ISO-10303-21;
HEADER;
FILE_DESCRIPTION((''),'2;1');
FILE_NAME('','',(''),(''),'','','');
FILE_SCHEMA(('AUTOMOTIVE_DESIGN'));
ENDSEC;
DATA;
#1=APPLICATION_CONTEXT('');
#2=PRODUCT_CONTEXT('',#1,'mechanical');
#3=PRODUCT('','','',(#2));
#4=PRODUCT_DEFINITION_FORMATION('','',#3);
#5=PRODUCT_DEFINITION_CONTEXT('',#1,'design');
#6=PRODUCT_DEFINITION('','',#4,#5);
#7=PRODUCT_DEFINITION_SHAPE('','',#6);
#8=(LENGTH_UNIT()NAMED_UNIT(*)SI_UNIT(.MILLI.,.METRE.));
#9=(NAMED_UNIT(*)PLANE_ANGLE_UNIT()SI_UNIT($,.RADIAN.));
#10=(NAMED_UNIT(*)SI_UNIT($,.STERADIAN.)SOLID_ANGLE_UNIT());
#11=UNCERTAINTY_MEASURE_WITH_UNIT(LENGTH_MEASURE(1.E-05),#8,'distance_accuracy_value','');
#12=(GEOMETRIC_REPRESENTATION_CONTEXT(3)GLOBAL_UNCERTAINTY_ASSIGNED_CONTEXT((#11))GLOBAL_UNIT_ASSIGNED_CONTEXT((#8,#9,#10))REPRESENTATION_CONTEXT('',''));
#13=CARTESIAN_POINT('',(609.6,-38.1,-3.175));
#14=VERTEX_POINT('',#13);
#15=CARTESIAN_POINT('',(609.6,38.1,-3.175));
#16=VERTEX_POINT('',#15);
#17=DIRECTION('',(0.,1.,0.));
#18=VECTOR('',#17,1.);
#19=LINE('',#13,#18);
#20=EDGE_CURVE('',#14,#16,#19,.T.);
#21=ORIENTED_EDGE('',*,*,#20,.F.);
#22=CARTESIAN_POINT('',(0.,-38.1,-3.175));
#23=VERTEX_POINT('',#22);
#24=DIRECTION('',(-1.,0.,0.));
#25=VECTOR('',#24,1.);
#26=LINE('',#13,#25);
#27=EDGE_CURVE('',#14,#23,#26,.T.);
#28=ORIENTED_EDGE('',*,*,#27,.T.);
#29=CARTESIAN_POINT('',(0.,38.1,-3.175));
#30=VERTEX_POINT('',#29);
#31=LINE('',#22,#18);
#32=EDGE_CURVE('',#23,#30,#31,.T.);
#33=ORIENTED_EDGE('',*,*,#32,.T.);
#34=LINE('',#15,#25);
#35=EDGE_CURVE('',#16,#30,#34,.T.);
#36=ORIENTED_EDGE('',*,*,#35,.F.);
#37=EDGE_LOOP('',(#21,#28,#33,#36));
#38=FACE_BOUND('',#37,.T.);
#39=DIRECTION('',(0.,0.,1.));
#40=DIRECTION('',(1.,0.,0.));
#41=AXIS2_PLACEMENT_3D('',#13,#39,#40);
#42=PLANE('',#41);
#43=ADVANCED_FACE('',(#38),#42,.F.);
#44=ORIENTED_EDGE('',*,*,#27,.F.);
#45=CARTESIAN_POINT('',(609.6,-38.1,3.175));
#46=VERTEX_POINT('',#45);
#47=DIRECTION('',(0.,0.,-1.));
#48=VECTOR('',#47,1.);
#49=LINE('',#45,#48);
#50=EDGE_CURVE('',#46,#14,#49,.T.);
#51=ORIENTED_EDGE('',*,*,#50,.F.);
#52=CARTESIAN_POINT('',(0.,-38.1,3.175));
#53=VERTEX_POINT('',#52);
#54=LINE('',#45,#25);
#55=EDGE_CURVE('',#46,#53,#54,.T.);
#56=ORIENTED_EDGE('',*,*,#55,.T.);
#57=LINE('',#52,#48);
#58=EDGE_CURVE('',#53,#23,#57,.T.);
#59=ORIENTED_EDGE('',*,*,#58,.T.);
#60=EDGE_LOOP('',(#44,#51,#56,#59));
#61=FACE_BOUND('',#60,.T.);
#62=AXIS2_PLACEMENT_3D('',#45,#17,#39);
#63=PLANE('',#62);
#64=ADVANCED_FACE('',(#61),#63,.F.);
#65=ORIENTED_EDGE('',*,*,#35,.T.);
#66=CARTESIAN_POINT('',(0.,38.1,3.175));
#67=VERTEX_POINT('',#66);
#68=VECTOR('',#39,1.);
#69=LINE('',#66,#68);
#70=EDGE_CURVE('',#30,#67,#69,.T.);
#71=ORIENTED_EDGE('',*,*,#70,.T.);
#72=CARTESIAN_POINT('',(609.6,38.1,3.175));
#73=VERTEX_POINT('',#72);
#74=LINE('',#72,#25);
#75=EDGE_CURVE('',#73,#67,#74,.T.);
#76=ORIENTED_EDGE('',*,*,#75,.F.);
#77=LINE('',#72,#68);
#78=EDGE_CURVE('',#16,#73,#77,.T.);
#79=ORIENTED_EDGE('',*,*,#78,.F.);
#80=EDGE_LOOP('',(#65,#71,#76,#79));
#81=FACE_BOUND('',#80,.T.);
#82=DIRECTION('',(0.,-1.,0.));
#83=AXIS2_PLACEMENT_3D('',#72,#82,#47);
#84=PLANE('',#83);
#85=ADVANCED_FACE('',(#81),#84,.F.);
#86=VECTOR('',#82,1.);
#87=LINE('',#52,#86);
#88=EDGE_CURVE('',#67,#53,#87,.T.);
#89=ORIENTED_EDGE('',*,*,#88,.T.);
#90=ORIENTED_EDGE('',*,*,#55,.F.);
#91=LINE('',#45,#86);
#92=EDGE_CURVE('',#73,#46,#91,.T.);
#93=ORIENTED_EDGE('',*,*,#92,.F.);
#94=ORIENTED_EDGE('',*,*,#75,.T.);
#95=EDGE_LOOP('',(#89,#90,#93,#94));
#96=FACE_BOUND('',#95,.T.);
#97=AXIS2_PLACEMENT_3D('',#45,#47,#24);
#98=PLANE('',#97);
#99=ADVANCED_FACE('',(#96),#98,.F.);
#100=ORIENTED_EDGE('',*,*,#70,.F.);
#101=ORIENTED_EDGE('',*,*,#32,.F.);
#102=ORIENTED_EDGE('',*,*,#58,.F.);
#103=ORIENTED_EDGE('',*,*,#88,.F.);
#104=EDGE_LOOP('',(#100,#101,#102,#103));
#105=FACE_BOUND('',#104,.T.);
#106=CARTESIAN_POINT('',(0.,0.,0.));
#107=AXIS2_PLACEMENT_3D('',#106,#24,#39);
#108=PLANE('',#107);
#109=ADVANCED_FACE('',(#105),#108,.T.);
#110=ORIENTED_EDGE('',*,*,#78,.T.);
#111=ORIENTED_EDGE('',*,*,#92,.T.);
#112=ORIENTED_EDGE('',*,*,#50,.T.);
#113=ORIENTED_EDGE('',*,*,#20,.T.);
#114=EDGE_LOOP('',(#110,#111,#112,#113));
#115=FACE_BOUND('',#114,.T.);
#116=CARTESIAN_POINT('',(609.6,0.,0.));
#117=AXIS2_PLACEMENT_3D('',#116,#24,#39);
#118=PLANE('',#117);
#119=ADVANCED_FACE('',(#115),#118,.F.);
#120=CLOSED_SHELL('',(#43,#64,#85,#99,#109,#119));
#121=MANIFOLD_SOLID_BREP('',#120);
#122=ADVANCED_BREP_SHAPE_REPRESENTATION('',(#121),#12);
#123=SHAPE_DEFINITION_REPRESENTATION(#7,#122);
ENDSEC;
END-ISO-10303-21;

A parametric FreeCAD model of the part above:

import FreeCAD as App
import Part
import Sketcher

V = App.Vector
Q = App.Units.Quantity

doc = App.newDocument("Part")
body = doc.addObject("PartDesign::Body", "Body")

# Sketch on YZ plane
sketch1 = body.newObject("Sketcher::SketchObject", "Sketch")
sketch1.AttachmentSupport = (doc.getObject("YZ_Plane"), [""])
sketch1.MapMode = "FlatFace"
sketch1.addGeometry(Part.LineSegment(V(38, 3, 0), V(-38, 3, 0)), False)
sketch1.addGeometry(Part.LineSegment(V(-38, 3, 0), V(-38, -3, 0)), False)
sketch1.addGeometry(Part.LineSegment(V(-38, -3, 0), V(38, -3, 0)), False)
sketch1.addGeometry(Part.LineSegment(V(38, -3, 0), V(38, 3, 0)), False)
sketch1.addConstraint(Sketcher.Constraint("Coincident", 0, 2, 1, 1))
sketch1.addConstraint(Sketcher.Constraint("Coincident", 1, 2, 2, 1))
sketch1.addConstraint(Sketcher.Constraint("Coincident", 2, 2, 3, 1))
sketch1.addConstraint(Sketcher.Constraint("Coincident", 3, 2, 0, 1))
sketch1.addConstraint(Sketcher.Constraint("Horizontal", 0))
sketch1.addConstraint(Sketcher.Constraint("Vertical", 1))
sketch1.addConstraint(Sketcher.Constraint("Horizontal", 2))
sketch1.addConstraint(Sketcher.Constraint("Vertical", 3))
sketch1.addConstraint(Sketcher.Constraint("Symmetric", 0, 2, 2, 2, -1, 1))
sketch1.addConstraint(Sketcher.Constraint("DistanceX", 0, 2, 0, 1, Q("3 in")))
sketch1.addConstraint(Sketcher.Constraint("DistanceY", 1, 2, 1, 1, Q("0.25 in")))
pad1 = body.newObject("PartDesign::Pad", "Pad")
pad1.Profile = sketch1
pad1.Length = Q("24 in")

doc.recompute()
